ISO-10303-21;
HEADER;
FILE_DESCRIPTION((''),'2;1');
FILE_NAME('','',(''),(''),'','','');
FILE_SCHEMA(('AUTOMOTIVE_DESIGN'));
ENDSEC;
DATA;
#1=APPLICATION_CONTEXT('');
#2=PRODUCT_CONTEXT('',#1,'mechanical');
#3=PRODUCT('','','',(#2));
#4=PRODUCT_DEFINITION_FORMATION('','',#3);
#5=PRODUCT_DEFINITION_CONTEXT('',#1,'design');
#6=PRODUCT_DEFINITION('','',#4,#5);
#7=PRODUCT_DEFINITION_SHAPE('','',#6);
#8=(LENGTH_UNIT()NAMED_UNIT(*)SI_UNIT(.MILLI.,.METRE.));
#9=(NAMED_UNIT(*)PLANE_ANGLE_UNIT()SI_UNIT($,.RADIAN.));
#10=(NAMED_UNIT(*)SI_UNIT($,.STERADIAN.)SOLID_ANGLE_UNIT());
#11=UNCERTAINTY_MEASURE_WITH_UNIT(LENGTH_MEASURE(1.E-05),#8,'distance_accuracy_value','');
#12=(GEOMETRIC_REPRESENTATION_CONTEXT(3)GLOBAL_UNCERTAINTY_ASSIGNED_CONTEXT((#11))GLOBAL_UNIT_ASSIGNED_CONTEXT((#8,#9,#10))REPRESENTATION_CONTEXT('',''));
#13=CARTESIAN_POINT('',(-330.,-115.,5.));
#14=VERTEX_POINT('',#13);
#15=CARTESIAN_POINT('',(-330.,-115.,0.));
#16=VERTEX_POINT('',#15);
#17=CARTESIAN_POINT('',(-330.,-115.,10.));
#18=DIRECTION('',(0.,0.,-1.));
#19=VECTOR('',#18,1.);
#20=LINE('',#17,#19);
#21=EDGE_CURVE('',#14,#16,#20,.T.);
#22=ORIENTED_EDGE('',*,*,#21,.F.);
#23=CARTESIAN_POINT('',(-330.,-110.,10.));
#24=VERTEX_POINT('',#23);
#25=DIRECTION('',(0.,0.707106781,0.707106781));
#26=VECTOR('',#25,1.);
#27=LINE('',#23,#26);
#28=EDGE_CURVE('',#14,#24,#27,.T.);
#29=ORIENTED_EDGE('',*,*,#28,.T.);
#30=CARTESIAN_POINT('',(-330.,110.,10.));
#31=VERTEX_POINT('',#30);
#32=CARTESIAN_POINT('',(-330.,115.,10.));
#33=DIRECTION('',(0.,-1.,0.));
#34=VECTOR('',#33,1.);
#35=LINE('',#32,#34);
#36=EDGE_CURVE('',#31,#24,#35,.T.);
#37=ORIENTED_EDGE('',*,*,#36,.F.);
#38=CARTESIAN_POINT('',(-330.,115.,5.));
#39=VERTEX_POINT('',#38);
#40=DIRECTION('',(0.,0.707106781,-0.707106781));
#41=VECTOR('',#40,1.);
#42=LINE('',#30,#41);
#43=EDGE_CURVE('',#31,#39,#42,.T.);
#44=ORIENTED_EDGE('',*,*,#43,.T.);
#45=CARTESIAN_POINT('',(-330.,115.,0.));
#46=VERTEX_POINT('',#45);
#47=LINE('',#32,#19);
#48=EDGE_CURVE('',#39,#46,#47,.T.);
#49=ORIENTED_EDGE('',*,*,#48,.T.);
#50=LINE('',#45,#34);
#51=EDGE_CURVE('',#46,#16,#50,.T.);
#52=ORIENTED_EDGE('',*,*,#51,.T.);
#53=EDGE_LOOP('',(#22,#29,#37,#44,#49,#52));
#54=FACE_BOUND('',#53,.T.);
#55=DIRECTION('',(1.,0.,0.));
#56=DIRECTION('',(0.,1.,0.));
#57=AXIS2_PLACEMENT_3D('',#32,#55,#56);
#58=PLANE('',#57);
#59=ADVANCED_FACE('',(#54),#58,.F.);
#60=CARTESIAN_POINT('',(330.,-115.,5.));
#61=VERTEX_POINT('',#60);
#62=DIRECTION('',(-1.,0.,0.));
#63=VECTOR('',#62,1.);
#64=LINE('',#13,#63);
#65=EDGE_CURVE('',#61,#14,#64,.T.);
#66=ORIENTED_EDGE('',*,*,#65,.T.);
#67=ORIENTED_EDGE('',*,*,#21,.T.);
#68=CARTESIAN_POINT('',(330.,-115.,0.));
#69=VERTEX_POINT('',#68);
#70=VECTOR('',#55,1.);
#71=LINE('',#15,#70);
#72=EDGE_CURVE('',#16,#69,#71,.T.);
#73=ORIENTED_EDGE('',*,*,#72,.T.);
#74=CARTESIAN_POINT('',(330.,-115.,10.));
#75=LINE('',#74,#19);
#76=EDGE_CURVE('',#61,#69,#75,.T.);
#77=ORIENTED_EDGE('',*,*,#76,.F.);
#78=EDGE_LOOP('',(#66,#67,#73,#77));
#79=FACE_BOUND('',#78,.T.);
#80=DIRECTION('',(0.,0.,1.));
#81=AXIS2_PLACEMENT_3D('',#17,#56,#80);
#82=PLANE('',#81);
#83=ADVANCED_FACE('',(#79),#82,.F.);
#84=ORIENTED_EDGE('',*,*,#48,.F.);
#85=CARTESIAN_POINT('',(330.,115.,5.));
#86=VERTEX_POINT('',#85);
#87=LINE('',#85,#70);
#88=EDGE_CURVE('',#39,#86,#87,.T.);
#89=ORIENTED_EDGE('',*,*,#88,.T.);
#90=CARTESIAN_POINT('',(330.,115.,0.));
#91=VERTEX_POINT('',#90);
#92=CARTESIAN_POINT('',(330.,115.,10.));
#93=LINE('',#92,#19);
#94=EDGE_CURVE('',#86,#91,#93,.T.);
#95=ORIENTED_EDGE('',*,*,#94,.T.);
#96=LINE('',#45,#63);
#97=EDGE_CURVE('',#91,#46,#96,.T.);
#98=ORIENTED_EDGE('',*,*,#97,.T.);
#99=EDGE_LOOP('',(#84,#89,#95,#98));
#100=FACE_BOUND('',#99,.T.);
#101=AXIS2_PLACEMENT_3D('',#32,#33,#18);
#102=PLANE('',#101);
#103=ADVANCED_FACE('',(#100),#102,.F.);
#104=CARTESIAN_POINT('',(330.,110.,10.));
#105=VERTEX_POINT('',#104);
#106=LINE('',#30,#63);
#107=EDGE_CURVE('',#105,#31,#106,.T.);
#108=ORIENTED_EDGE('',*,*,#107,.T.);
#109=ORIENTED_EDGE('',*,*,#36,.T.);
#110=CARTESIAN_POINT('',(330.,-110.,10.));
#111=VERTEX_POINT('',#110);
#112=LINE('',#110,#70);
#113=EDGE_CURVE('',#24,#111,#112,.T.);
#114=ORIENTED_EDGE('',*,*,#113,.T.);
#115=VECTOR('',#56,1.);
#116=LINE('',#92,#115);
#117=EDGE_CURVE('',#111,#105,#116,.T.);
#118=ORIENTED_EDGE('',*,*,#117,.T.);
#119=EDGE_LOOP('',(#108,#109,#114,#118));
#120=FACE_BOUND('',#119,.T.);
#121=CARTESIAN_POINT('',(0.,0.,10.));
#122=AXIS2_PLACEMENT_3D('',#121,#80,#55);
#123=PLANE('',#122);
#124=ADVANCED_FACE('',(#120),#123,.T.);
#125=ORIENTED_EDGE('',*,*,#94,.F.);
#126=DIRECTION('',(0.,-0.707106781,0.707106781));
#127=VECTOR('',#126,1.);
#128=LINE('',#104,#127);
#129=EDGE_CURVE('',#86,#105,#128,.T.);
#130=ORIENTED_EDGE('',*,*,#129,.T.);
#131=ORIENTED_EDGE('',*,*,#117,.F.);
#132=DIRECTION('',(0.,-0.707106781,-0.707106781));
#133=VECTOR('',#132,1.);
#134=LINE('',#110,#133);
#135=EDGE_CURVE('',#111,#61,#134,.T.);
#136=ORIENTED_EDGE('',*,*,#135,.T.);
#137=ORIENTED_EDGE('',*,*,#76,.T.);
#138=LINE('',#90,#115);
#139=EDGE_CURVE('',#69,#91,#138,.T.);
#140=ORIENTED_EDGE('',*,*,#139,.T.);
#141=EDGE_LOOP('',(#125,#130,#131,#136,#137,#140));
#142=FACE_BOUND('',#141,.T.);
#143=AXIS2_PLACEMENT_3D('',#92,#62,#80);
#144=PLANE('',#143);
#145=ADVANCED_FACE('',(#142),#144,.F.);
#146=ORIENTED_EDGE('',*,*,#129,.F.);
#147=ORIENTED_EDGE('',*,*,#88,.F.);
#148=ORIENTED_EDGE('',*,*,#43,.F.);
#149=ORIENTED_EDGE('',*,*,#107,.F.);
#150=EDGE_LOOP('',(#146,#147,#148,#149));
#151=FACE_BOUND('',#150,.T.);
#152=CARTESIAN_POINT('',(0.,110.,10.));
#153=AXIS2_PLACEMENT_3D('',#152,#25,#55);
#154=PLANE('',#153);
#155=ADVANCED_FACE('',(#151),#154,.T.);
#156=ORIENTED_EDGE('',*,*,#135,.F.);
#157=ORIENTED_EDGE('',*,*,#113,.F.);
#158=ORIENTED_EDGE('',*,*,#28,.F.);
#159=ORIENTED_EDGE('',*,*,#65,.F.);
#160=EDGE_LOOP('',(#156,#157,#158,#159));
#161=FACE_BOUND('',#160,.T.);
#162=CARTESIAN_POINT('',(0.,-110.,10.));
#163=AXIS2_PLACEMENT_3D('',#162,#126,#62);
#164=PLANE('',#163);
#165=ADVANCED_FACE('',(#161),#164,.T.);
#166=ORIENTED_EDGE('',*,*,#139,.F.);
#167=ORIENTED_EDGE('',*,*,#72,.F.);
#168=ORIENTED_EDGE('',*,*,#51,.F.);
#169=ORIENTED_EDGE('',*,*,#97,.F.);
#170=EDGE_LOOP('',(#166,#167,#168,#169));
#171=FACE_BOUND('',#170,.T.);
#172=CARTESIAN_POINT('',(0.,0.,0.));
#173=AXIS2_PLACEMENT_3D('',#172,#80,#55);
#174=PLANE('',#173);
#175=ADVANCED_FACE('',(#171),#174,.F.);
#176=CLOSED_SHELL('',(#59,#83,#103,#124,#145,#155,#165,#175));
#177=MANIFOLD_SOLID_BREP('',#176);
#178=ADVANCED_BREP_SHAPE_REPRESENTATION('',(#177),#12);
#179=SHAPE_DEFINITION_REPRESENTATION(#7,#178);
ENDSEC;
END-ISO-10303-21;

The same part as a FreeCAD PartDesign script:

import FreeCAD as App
import Part
import Sketcher
from FreeCAD import Vector


def edges_at(feature, points):
    """Names of the edges that pass closest to the given points."""
    edges = feature.Shape.Edges
    near = lambda p: min(range(len(edges)), key=lambda i: edges[i].distToShape(Part.Vertex(*p))[0])
    return sorted({f"Edge{near(p) + 1}" for p in points})

doc = App.newDocument("Part")
params = doc.addObject("Spreadsheet::Sheet", "Params")
for row, (alias, value) in enumerate([
    ("sketch1_width", "660 mm"),
    ("sketch1_height", "230 mm"),
    ("pad1_length", "10 mm"),
    ("chamfer_size", "5 mm"),
], start=1):
    params.set(f"A{row}", alias)
    params.set(f"B{row}", "=" + value)
    params.setAlias(f"B{row}", alias)

body = doc.addObject("PartDesign::Body", "Body")

sketch1 = body.newObject("Sketcher::SketchObject", "Sketch")
sketch1.AttachmentSupport = (doc.getObject("XY_Plane"), [""])
sketch1.MapMode = "FlatFace"
sketch1.addGeometry(Part.LineSegment(Vector(-330, 115, 0), Vector(-330, -115, 0)), False)
sketch1.addGeometry(Part.LineSegment(Vector(-330, -115, 0), Vector(330, -115, 0)), False)
sketch1.addGeometry(Part.LineSegment(Vector(330, -115, 0), Vector(330, 115, 0)), False)
sketch1.addGeometry(Part.LineSegment(Vector(330, 115, 0), Vector(-330, 115, 0)), False)
sketch1.addConstraint(Sketcher.Constraint("Coincident", 0, 2, 1, 1))
sketch1.addConstraint(Sketcher.Constraint("Coincident", 1, 2, 2, 1))
sketch1.addConstraint(Sketcher.Constraint("Coincident", 2, 2, 3, 1))
sketch1.addConstraint(Sketcher.Constraint("Coincident", 3, 2, 0, 1))
sketch1.addConstraint(Sketcher.Constraint("Vertical", 0))
sketch1.addConstraint(Sketcher.Constraint("Horizontal", 1))
sketch1.addConstraint(Sketcher.Constraint("Vertical", 2))
sketch1.addConstraint(Sketcher.Constraint("Horizontal", 3))
sketch1.addConstraint(Sketcher.Constraint("Symmetric", 0, 2, 2, 2, -1, 1))
sketch1.addConstraint(Sketcher.Constraint("DistanceX", 1, 1, 1, 2, 660.0))
sketch1.addConstraint(Sketcher.Constraint("DistanceY", 0, 2, 0, 1, 230.0))
sketch1.setExpression("Constraints[9]", "Params.sketch1_width")
sketch1.setExpression("Constraints[10]", "Params.sketch1_height")
pad1 = body.newObject("PartDesign::Pad", "Pad")
pad1.Profile = sketch1
pad1.setExpression("Length", "Params.pad1_length")
doc.recompute()

chamfer = body.newObject("PartDesign::Chamfer", "Chamfer")
chamfer.Base = (pad1, edges_at(pad1, [(0, -115, 10), (0, 115, 10)]))
chamfer.setExpression("Size", "Params.chamfer_size")

doc.recompute()
